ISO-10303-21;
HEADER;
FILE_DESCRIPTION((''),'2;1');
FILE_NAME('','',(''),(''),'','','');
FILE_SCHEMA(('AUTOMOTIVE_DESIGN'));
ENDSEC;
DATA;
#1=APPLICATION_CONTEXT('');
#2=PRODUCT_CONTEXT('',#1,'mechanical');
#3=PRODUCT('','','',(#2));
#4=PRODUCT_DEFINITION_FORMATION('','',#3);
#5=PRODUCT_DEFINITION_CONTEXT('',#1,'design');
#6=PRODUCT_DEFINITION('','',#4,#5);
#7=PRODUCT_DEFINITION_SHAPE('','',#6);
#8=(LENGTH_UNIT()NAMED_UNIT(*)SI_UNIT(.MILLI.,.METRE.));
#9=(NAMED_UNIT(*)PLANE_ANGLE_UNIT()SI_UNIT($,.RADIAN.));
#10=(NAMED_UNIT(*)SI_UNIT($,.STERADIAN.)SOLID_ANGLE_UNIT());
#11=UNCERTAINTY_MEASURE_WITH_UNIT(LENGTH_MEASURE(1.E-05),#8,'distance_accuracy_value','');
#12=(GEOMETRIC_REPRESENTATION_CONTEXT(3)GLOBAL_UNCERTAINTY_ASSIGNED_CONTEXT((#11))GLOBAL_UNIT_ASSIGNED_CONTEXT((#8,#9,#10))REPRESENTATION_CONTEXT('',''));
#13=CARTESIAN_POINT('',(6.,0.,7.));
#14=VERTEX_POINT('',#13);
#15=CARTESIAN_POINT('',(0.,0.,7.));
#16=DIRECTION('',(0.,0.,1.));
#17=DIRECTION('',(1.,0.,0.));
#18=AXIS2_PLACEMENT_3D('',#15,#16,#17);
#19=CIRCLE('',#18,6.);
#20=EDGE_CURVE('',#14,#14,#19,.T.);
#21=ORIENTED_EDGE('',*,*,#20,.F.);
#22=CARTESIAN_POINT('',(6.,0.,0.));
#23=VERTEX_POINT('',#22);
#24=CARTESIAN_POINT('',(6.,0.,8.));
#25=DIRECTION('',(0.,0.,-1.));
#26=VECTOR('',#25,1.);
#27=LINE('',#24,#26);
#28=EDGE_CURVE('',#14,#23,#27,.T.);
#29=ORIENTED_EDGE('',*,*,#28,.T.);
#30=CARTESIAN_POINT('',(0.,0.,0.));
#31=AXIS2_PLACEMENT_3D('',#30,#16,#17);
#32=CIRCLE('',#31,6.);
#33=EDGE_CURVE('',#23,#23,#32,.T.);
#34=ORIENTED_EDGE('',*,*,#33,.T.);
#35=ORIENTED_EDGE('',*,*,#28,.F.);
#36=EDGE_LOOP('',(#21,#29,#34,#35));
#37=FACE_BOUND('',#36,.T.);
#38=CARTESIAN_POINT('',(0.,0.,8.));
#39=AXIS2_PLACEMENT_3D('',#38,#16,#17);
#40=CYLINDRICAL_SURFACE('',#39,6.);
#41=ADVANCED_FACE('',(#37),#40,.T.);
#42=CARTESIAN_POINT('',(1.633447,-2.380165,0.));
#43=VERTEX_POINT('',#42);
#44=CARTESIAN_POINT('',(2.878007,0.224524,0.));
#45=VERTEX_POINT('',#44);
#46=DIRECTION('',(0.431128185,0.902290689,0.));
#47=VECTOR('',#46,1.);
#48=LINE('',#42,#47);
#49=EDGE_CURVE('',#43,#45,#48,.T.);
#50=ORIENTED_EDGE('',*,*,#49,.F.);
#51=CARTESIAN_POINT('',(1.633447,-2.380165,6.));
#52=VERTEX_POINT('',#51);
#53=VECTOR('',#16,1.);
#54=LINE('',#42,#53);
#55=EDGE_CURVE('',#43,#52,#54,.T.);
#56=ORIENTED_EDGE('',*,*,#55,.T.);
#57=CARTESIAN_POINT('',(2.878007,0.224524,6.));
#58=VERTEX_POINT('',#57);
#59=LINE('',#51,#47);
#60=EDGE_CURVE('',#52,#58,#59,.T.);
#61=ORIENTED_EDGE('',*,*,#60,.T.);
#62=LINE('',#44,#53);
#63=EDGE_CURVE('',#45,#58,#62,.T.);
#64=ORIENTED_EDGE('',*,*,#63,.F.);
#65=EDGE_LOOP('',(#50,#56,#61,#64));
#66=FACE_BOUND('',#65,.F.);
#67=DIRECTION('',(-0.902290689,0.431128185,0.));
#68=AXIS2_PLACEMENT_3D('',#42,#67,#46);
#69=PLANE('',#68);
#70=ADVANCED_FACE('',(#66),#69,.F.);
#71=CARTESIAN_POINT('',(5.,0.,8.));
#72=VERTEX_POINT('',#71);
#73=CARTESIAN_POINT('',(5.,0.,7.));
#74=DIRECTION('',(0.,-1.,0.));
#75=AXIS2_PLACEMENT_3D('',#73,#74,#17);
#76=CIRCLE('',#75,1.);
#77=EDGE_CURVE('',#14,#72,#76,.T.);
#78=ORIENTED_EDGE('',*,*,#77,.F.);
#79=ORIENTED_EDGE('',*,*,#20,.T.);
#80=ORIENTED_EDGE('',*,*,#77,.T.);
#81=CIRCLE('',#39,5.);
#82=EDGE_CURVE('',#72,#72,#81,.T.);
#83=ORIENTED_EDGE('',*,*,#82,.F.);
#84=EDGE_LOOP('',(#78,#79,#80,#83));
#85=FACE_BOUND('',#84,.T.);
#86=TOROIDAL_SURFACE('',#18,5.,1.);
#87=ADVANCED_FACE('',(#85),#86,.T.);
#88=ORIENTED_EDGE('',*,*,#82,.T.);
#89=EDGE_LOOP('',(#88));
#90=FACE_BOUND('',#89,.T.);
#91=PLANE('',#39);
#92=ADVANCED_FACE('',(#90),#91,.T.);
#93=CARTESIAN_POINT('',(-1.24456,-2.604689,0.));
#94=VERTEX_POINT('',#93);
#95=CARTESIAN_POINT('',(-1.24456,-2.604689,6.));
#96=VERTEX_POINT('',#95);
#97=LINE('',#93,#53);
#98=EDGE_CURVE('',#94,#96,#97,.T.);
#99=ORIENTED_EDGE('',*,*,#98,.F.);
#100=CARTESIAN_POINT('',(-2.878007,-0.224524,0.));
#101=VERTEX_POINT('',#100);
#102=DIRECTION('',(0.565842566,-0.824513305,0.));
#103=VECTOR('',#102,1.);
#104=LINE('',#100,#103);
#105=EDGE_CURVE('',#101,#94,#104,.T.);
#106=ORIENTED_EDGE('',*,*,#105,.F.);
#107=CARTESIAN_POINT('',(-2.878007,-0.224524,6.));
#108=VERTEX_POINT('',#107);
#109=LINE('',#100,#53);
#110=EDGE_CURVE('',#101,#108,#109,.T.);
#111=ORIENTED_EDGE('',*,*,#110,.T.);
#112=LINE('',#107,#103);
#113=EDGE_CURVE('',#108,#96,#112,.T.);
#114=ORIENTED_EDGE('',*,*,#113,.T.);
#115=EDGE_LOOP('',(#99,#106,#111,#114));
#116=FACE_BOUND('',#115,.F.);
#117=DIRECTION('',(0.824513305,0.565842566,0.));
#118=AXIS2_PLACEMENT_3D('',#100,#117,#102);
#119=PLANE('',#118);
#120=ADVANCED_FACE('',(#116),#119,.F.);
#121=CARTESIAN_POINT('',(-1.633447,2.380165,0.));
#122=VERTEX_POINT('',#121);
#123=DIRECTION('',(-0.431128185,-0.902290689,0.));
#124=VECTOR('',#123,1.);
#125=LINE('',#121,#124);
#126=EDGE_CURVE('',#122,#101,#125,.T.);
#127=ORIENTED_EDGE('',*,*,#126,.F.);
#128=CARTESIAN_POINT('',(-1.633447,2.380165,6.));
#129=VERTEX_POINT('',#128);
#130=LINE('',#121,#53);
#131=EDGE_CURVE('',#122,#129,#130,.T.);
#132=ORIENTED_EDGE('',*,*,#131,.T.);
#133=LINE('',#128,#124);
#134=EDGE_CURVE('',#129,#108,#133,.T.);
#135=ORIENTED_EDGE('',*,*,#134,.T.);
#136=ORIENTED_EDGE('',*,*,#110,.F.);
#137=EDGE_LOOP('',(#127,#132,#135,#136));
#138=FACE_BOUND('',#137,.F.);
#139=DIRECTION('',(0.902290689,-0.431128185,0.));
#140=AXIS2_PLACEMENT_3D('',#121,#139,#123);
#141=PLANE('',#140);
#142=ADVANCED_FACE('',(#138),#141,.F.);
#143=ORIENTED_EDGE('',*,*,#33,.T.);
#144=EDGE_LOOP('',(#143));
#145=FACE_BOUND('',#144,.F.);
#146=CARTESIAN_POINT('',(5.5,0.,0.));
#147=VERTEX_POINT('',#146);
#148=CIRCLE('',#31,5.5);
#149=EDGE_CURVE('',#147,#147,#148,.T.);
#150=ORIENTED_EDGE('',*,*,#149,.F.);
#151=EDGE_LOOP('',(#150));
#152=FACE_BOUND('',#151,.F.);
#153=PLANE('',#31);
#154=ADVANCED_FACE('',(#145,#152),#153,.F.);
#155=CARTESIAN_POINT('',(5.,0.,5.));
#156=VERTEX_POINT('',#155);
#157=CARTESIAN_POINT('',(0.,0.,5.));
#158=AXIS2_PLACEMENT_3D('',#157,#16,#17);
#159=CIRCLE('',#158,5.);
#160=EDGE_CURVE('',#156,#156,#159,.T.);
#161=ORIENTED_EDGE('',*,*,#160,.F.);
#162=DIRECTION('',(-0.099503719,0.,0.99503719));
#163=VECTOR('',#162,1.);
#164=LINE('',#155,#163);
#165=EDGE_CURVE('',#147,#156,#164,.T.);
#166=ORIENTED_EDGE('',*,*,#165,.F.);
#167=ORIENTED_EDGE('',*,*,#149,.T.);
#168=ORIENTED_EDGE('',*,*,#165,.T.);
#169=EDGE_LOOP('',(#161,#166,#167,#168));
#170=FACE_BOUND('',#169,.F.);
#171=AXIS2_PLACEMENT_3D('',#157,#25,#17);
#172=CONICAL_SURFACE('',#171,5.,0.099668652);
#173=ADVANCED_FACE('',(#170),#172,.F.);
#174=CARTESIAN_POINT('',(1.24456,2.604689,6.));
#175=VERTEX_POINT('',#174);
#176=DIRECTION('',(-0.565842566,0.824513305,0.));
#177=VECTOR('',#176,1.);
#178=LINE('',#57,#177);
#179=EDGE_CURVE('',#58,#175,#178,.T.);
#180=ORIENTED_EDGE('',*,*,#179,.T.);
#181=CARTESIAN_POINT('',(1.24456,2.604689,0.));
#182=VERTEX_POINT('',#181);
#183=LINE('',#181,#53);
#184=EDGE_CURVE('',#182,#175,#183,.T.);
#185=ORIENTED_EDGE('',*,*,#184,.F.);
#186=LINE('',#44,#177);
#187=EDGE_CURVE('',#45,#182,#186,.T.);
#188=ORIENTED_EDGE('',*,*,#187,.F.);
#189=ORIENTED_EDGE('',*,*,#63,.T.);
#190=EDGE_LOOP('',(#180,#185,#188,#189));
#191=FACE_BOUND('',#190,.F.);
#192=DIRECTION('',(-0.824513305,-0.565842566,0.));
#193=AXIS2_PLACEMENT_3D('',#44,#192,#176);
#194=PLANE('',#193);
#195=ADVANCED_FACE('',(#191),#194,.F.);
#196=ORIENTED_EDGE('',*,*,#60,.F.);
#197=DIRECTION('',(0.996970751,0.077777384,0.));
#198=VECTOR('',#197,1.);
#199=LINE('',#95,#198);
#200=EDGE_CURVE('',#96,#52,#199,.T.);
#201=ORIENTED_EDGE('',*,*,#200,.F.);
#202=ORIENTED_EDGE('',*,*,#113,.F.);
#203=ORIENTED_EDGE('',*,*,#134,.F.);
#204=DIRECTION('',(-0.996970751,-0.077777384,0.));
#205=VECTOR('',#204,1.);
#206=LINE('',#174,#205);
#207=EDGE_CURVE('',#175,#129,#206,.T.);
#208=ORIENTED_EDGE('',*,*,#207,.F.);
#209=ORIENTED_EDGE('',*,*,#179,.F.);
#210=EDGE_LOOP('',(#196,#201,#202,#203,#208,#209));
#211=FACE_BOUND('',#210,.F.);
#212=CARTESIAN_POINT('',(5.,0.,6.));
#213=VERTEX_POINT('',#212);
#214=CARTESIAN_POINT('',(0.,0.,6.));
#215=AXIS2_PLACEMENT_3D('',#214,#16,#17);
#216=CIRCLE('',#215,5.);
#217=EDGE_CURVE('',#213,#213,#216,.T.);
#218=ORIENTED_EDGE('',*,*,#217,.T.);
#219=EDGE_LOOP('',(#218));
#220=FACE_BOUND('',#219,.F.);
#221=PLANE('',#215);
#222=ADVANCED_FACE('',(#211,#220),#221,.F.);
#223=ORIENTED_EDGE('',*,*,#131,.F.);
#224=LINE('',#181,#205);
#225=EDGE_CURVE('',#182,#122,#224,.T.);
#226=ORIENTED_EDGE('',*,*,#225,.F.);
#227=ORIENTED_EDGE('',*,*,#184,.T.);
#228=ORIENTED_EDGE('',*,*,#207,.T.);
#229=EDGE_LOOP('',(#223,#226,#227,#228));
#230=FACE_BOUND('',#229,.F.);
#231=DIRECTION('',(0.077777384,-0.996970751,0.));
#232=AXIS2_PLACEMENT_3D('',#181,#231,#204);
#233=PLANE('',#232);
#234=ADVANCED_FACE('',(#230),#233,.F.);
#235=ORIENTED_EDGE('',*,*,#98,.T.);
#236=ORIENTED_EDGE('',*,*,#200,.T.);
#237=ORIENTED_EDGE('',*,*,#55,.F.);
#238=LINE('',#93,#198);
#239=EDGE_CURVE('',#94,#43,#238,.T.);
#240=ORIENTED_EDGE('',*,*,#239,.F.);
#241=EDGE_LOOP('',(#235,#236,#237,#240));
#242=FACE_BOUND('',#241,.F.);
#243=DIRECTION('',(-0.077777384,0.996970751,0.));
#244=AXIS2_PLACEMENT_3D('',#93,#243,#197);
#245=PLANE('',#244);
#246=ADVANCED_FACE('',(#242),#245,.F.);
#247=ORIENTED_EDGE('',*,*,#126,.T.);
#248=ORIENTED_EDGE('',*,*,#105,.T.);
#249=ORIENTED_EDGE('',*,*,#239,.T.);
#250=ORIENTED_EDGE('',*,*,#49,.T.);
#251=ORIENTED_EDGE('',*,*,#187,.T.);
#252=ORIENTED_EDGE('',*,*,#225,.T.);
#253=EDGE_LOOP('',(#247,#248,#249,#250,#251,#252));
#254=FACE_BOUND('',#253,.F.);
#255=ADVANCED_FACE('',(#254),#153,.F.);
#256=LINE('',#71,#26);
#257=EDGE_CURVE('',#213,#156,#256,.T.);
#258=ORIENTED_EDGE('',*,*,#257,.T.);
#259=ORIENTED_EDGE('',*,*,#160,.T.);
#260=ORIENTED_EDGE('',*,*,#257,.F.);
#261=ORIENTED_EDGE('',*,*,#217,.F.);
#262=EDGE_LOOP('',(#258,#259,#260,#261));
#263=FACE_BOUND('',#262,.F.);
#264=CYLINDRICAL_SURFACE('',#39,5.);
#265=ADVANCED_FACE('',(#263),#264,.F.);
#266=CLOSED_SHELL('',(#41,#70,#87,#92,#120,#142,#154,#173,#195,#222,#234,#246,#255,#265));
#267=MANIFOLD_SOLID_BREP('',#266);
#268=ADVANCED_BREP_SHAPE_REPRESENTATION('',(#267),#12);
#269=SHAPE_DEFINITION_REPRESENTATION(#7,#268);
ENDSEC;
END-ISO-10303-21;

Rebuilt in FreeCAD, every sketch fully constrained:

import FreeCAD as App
import Part
import Sketcher
from FreeCAD import Vector


def edges_at(feature, points):
    """Names of the edges that pass closest to the given points."""
    edges = feature.Shape.Edges
    near = lambda p: min(range(len(edges)), key=lambda i: edges[i].distToShape(Part.Vertex(*p))[0])
    return sorted({f"Edge{near(p) + 1}" for p in points})

doc = App.newDocument("Part")
params = doc.addObject("Spreadsheet::Sheet", "Params")
for row, (alias, value) in enumerate([
    ("pad1_length", "6 mm"),
    ("sketch2_diameter", "10 mm"),
    ("pad2_length", "2 mm"),
    ("sketch3_diameter", "12 mm"),
    ("sketch3_diameter2", "10 mm"),
    ("pad3_length", "8 mm"),
    ("fillet_radius", "1 mm"),
    ("chamfer_size", "0.5 mm"),
    ("chamfer_size2", "5 mm"),
], start=1):
    params.set(f"A{row}", alias)
    params.set(f"B{row}", "=" + value)
    params.setAlias(f"B{row}", alias)

body = doc.addObject("PartDesign::Body", "Body")

# Sketch on XY plane
sketch1 = doc.addObject("Sketcher::SketchObject", "Sketch")
body.addObject(sketch1)
sketch1.AttachmentSupport = (doc.XY_Plane, [""])
sketch1.MapMode = "FlatFace"
sketch1.addGeometry([
    Part.LineSegment(Vector(1.633447, -2.380165, 0), Vector(2.878007, 0.224524, 0)),  # 0
    Part.LineSegment(Vector(2.878007, 0.224524, 0), Vector(1.24456, 2.604689, 0)),  # 1
    Part.LineSegment(Vector(1.24456, 2.604689, 0), Vector(-1.633447, 2.380165, 0)),  # 2
    Part.LineSegment(Vector(-1.633447, 2.380165, 0), Vector(-2.878007, -0.224524, 0)),  # 3
    Part.LineSegment(Vector(-2.878007, -0.224524, 0), Vector(-1.24456, -2.604689, 0)),  # 4
    Part.LineSegment(Vector(-1.24456, -2.604689, 0), Vector(1.633447, -2.380165, 0)),  # 5
], False)
sketch1.addConstraint([
    Sketcher.Constraint("Coincident", 0, 2, 1, 1),
    Sketcher.Constraint("Coincident", 1, 2, 2, 1),
    Sketcher.Constraint("Coincident", 2, 2, 3, 1),
    Sketcher.Constraint("Coincident", 3, 2, 4, 1),
    Sketcher.Constraint("Coincident", 4, 2, 5, 1),
    Sketcher.Constraint("Coincident", 5, 2, 0, 1),
    Sketcher.Constraint("Symmetric", 0, 2, 3, 2, -1, 1),
    Sketcher.Constraint("Symmetric", 1, 2, 4, 2, -1, 1),
    Sketcher.Constraint("Symmetric", 2, 2, 5, 2, -1, 1),
    Sketcher.Constraint("Equal", 0, 1),
    Sketcher.Constraint("Equal", 1, 2),
    Sketcher.Constraint("Distance", 0, 2.886751),
    Sketcher.Constraint("DistanceX", -1, 1, 1, 2, 1.24456),
    Sketcher.Constraint("DistanceY", -1, 1, 1, 2, 2.604689),
    Sketcher.Constraint("DistanceY", 0, 2, 2, 2, 2.155641),
])
pad1 = doc.addObject("PartDesign::Pad", "Pad")
body.addObject(pad1)
pad1.Profile = sketch1
pad1.setExpression("Length", "Params.pad1_length")

# Sketch on XY plane
sketch2 = doc.addObject("Sketcher::SketchObject", "Sketch001")
body.addObject(sketch2)
sketch2.AttachmentSupport = (doc.XY_Plane, [""])
sketch2.MapMode = "FlatFace"
sketch2.AttachmentOffset = App.Placement(Vector(0, 0, 6), App.Rotation())
sketch2.addGeometry(Part.Circle(Vector(0, 0, 0), Vector(0, 0, 1), 5), False)
sketch2.addConstraint([
    Sketcher.Constraint("Coincident", 0, 3, -1, 1),
    Sketcher.Constraint("Diameter", 0, 10.0),
])
sketch2.setExpression("Constraints[1]", "Params.sketch2_diameter")
pad2 = doc.addObject("PartDesign::Pad", "Pad001")
body.addObject(pad2)
pad2.Profile = sketch2
pad2.setExpression("Length", "Params.pad2_length")

# Sketch on XY plane
sketch3 = doc.addObject("Sketcher::SketchObject", "Sketch002")
body.addObject(sketch3)
sketch3.AttachmentSupport = (doc.XY_Plane, [""])
sketch3.MapMode = "FlatFace"
sketch3.AttachmentOffset = App.Placement(Vector(0, 0, 8), App.Rotation())
sketch3.addGeometry([
    Part.Circle(Vector(0, 0, 0), Vector(0, 0, 1), 6),
    Part.Circle(Vector(0, 0, 0), Vector(0, 0, 1), 5),
], False)
sketch3.addConstraint([
    Sketcher.Constraint("Coincident", 0, 3, -1, 1),
    Sketcher.Constraint("Coincident", 1, 3, -1, 1),
    Sketcher.Constraint("Diameter", 0, 12.0),
    Sketcher.Constraint("Diameter", 1, 10.0),
])
sketch3.setExpression("Constraints[2]", "Params.sketch3_diameter")
sketch3.setExpression("Constraints[3]", "Params.sketch3_diameter2")
pad3 = doc.addObject("PartDesign::Pad", "Pad002")
body.addObject(pad3)
pad3.Profile = sketch3
pad3.setExpression("Length", "Params.pad3_length")
pad3.Reversed = True
doc.recompute()

fillet = doc.addObject("PartDesign::Fillet", "Fillet")
body.addObject(fillet)
fillet.Base = (pad3, edges_at(pad3, [(-6, 0, 8)]))
fillet.setExpression("Radius", "Params.fillet_radius")
doc.recompute()

chamfer = doc.addObject("PartDesign::Chamfer", "Chamfer")
body.addObject(chamfer)
chamfer.Base = (fillet, edges_at(fillet, [(-5, 0, 0)]))
chamfer.ChamferType = "Two distances"
chamfer.setExpression("Size", "Params.chamfer_size")
chamfer.setExpression("Size2", "Params.chamfer_size2")

doc.recompute()
